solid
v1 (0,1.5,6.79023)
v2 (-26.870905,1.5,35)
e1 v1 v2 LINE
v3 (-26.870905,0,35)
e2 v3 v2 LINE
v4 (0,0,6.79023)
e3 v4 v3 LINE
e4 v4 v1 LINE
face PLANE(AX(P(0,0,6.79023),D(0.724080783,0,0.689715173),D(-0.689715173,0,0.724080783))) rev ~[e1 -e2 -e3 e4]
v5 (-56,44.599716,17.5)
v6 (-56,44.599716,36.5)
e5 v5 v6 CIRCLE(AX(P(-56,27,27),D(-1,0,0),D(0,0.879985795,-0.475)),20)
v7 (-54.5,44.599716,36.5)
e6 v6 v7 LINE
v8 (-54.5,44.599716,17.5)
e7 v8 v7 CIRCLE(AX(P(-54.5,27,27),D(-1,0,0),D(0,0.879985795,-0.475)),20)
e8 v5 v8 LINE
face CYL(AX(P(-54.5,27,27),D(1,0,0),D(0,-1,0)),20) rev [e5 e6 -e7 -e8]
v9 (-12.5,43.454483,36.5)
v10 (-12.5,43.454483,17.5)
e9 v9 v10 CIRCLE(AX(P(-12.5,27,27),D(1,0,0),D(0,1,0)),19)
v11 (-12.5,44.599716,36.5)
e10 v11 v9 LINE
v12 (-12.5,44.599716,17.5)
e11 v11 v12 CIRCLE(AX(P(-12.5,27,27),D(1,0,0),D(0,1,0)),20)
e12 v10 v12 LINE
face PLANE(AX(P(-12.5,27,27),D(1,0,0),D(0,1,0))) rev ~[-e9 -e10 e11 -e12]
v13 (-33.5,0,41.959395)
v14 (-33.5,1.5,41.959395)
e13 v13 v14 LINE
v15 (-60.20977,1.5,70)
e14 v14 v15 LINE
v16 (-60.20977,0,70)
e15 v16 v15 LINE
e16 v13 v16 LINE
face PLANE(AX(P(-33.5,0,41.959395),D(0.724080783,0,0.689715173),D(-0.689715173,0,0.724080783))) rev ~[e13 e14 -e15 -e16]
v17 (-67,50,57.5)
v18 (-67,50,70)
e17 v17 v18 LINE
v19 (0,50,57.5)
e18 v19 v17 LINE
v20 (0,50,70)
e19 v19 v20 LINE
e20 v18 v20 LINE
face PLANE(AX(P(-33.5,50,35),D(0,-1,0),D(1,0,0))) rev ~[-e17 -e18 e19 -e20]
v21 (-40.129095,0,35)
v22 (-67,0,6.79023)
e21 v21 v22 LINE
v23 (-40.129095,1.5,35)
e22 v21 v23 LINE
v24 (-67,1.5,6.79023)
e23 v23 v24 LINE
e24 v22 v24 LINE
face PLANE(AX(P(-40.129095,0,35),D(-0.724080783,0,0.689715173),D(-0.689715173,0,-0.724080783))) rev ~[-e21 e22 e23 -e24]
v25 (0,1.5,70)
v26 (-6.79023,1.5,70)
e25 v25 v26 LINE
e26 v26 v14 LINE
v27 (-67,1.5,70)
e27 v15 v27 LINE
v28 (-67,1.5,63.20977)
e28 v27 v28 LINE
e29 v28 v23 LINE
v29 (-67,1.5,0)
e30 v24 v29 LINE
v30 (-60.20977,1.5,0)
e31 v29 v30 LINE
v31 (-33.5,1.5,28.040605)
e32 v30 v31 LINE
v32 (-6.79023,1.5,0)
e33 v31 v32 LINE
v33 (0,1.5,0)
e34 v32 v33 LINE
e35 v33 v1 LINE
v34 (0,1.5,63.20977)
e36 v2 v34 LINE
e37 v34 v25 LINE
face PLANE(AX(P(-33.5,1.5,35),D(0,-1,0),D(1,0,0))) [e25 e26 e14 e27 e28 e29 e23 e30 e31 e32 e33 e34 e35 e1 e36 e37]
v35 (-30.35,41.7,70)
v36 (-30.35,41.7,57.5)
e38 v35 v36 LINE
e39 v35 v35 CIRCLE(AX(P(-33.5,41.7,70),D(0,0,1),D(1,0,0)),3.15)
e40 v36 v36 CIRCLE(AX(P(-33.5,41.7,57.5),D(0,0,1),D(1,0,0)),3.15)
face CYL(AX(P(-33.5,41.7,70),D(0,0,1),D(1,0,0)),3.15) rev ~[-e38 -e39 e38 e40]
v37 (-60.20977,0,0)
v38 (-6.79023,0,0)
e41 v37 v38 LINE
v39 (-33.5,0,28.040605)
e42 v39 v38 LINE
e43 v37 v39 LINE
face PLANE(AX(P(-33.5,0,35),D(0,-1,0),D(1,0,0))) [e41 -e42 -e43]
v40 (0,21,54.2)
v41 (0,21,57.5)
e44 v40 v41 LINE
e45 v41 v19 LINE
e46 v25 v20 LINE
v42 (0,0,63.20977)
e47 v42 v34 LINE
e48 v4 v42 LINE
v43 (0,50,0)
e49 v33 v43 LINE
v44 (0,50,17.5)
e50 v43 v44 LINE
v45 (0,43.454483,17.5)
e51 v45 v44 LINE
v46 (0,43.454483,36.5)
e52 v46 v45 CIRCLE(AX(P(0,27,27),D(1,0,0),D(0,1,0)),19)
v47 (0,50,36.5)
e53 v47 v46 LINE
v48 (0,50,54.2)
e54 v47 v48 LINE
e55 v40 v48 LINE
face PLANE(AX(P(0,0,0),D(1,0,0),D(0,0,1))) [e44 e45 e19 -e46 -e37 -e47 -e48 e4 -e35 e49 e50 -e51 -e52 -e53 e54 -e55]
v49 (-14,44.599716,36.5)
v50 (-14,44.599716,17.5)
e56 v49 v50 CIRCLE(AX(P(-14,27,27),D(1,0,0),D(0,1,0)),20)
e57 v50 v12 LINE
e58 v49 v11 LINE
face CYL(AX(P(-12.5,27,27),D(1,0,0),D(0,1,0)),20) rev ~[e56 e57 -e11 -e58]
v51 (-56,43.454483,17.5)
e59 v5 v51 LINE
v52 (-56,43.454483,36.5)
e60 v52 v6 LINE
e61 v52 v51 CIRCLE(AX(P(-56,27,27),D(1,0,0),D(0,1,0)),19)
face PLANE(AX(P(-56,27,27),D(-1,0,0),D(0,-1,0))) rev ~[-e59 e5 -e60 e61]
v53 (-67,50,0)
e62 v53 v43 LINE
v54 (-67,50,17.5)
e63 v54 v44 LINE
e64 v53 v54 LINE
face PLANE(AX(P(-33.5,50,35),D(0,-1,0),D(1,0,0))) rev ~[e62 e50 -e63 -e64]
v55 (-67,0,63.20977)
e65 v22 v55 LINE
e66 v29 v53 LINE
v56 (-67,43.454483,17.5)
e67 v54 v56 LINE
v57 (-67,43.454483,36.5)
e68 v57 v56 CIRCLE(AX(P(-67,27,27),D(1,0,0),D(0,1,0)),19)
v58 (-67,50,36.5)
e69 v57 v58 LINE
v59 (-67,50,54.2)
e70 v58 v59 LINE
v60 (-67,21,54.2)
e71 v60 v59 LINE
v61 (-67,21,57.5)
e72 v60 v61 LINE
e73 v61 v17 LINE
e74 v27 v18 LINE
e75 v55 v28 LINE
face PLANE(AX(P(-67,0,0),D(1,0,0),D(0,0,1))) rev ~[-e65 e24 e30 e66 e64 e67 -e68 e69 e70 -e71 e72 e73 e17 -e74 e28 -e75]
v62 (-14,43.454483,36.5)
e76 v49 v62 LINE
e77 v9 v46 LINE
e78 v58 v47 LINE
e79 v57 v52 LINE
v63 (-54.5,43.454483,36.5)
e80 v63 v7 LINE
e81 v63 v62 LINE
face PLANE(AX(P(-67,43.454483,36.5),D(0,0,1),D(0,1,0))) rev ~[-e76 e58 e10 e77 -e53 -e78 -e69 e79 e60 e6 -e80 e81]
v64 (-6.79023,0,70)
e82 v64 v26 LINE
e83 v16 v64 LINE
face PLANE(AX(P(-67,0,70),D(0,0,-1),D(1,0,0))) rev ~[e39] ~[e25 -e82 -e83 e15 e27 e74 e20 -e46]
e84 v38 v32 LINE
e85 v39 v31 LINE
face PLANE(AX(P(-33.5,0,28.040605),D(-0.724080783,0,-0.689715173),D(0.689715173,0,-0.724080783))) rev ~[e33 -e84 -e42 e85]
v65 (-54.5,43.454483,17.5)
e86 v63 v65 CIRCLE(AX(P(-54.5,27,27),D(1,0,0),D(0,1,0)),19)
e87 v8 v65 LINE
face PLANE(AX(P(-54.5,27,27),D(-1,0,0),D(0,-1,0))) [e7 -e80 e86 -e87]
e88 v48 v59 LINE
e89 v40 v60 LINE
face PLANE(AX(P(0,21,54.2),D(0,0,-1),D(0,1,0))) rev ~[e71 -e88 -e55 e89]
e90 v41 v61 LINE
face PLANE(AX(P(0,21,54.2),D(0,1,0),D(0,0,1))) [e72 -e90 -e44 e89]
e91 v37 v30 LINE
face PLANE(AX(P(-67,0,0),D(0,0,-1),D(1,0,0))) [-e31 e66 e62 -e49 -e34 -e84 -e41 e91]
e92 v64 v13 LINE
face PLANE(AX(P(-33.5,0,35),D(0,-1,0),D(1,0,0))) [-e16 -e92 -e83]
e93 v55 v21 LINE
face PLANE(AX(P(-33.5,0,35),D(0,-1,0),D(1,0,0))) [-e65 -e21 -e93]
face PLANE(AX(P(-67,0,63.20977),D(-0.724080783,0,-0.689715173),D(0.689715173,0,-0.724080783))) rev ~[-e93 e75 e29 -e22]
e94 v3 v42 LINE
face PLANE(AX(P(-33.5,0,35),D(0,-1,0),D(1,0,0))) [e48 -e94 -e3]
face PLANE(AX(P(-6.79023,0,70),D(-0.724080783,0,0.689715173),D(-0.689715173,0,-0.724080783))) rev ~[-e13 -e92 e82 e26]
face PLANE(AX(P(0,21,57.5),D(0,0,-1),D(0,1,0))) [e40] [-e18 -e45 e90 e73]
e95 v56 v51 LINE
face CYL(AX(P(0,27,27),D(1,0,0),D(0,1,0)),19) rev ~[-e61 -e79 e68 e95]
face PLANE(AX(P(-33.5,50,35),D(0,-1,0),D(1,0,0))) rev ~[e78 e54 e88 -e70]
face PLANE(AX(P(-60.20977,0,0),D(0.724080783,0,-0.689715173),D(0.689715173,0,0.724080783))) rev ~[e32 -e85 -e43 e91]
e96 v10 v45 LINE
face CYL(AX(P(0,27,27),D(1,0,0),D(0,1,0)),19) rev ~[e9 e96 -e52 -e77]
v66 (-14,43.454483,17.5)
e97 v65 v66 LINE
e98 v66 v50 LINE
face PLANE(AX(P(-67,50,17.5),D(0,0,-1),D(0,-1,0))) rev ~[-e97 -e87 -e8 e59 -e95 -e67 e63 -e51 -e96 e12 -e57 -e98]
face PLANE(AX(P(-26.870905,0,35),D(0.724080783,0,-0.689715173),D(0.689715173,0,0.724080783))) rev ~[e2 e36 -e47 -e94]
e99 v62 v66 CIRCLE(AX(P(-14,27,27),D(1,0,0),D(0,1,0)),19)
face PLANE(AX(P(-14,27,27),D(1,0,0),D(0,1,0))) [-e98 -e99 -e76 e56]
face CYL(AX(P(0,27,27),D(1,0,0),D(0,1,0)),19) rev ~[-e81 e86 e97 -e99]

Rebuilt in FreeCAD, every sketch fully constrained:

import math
import FreeCAD as App
import Part
import Sketcher
Q = App.Units.Quantity


def add_polygon(sketch, points):
    """Adds a closed chain of lines whose ends are joined by coincident constraints."""
    first, n = sketch.GeometryCount, len(points)
    for a, b in zip(points, points[1:] + points[:1]):
        sketch.addGeometry(Part.LineSegment(App.Vector(*a, 0), App.Vector(*b, 0)), False)
    for i in range(n):
        sketch.addConstraint(Sketcher.Constraint("Coincident", first + i, 2, first + (i + 1) % n, 1))

doc = App.newDocument("Part")
body = doc.addObject("PartDesign::Body", "Body")

# Sketch on XZ plane
sketch1 = doc.addObject("Sketcher::SketchObject", "Sketch")
body.addObject(sketch1)
sketch1.AttachmentSupport = (doc.XZ_Plane, [""])
sketch1.MapMode = "FlatFace"
add_polygon(sketch1, [(-67, 70), (-67, 0), (0, 0), (0, 70)])  # lines 0-3
sketch1.addConstraint([
    Sketcher.Constraint("Vertical", 0),
    Sketcher.Constraint("Horizontal", 1),
    Sketcher.Constraint("Vertical", 2),
    Sketcher.Constraint("Horizontal", 3),
    Sketcher.Constraint("Coincident", 1, 2, -1, 1),
    Sketcher.Constraint("DistanceX", 1, 1, 1, 2, Q("67 mm")),
    Sketcher.Constraint("DistanceY", 0, 2, 0, 1, Q("70 mm")),
])
pad1 = doc.addObject("PartDesign::Pad", "Pad")
body.addObject(pad1)
pad1.Profile = sketch1
pad1.Length = 50
pad1.Reversed = True

# Sketch on XZ plane
sketch2 = doc.addObject("Sketcher::SketchObject", "Sketch001")
body.addObject(sketch2)
sketch2.AttachmentSupport = (doc.XZ_Plane, [""])
sketch2.MapMode = "FlatFace"
add_polygon(sketch2, [(-67, 7), (-67, 0), (-60, 0), (-34, 28), (-7, 0), (0, 0), (0, 7), (-27, 35), (0, 63), (0, 70), (-7, 70), (-34, 42), (-60, 70), (-67, 70), (-67, 63), (-40, 35)])  # lines 0-15
sketch2.addConstraint([
    Sketcher.Constraint("Vertical", 0),
    Sketcher.Constraint("Horizontal", 1),
    Sketcher.Constraint("Horizontal", 4),
    Sketcher.Constraint("Vertical", 5),
    Sketcher.Constraint("Vertical", 8),
    Sketcher.Constraint("Horizontal", 9),
    Sketcher.Constraint("Horizontal", 12),
    Sketcher.Constraint("Vertical", 13),
    Sketcher.Constraint("Coincident", 4, 2, -1, 1),
    Sketcher.Constraint("PointOnObject", 0, 2, -1),
    Sketcher.Constraint("PointOnObject", 7, 2, -2),
    Sketcher.Constraint("Parallel", 3, 6),
    Sketcher.Constraint("Parallel", 2, 7),
    Sketcher.Constraint("Parallel", 7, 10),
    Sketcher.Constraint("Parallel", 6, 11),
    Sketcher.Constraint("Parallel", 11, 14),
    Sketcher.Constraint("Parallel", 10, 15),
    Sketcher.Constraint("Horizontal", 9, 2, 11, 2),
    Sketcher.Constraint("Horizontal", 7, 2, 13, 2),
    Sketcher.Constraint("Horizontal", 6, 2, 14, 2),
    Sketcher.Constraint("Horizontal", 5, 2, 15, 2),
    Sketcher.Constraint("Vertical", 3, 2, 9, 2),
    Sketcher.Constraint("Vertical", 2, 2, 10, 2),
    Sketcher.Constraint("Vertical", 1, 2, 11, 2),
    Sketcher.Constraint("Equal", 1, 4),
    Sketcher.Constraint("Equal", 12, 0),
    Sketcher.Constraint("Equal", 5, 8),
    Sketcher.Constraint("DistanceX", 0, 2, -1, 1, Q("67 mm")),
    Sketcher.Constraint("DistanceY", -1, 1, 6, 2, Q("35 mm")),
    Sketcher.Constraint("DistanceX", 1, 1, 1, 2, Q("6.79023 mm")),
    Sketcher.Constraint("DistanceY", 2, 2, 10, 2, Q("13.918789 mm")),
])
pocket1 = doc.addObject("PartDesign::Pocket", "Pocket")
body.addObject(pocket1)
pocket1.Profile = sketch2
pocket1.Length = 1.5

# Sketch on YZ plane
sketch3 = doc.addObject("Sketcher::SketchObject", "Sketch002")
body.addObject(sketch3)
sketch3.AttachmentSupport = (doc.YZ_Plane, [""])
sketch3.MapMode = "FlatFace"
sketch3.addGeometry(Part.Circle(App.Vector(27, 27, 0), App.Vector(0, 0, 1), 19), False)
sketch3.addConstraint([
    Sketcher.Constraint("Diameter", 0, Q("38 mm")),
    Sketcher.Constraint("DistanceX", -1, 1, 0, 3, Q("27 mm")),
    Sketcher.Constraint("DistanceY", -1, 1, 0, 3, Q("27 mm")),
])
pocket2 = doc.addObject("PartDesign::Pocket", "Pocket001")
body.addObject(pocket2)
pocket2.Profile = sketch3
pocket2.Type = "ThroughAll"

# Sketch on YZ plane
sketch4 = doc.addObject("Sketcher::SketchObject", "Sketch003")
body.addObject(sketch4)
sketch4.AttachmentSupport = (doc.YZ_Plane, [""])
sketch4.MapMode = "FlatFace"
add_polygon(sketch4, [(21, 57.5), (21, 54.2), (50, 54.2), (50, 57.5)])  # lines 0-3
sketch4.addConstraint([
    Sketcher.Constraint("Vertical", 0),
    Sketcher.Constraint("Horizontal", 1),
    Sketcher.Constraint("Vertical", 2),
    Sketcher.Constraint("Horizontal", 3),
    Sketcher.Constraint("DistanceX", 1, 1, 1, 2, Q("29 mm")),
    Sketcher.Constraint("DistanceY", 0, 2, 0, 1, Q("3.3 mm")),
    Sketcher.Constraint("DistanceX", -1, 1, 0, 2, Q("21 mm")),
    Sketcher.Constraint("DistanceY", -1, 1, 0, 2, Q("54.2 mm")),
])
pocket3 = doc.addObject("PartDesign::Pocket", "Pocket002")
body.addObject(pocket3)
pocket3.Profile = sketch4
pocket3.Type = "ThroughAll"

# Sketch on XY plane
sketch5 = doc.addObject("Sketcher::SketchObject", "Sketch004")
body.addObject(sketch5)
sketch5.AttachmentSupport = (doc.XY_Plane, [""])
sketch5.MapMode = "FlatFace"
sketch5.AttachmentOffset = App.Placement(App.Vector(0, 0, 70), App.Rotation())
sketch5.addGeometry(Part.Circle(App.Vector(-33.5, 41.7, 0), App.Vector(0, 0, 1), 3.1), False)
sketch5.addConstraint([
    Sketcher.Constraint("Diameter", 0, Q("6.3 mm")),
    Sketcher.Constraint("DistanceX", 0, 3, -1, 1, Q("33.5 mm")),
    Sketcher.Constraint("DistanceY", -1, 1, 0, 3, Q("41.7 mm")),
])
pocket4 = doc.addObject("PartDesign::Pocket", "Pocket003")
body.addObject(pocket4)
pocket4.Profile = sketch5
pocket4.Length = 12.5

# Sketch on YZ plane
sketch6 = doc.addObject("Sketcher::SketchObject", "Sketch005")
body.addObject(sketch6)
sketch6.AttachmentSupport = (doc.YZ_Plane, [""])
sketch6.MapMode = "FlatFace"
sketch6.AttachmentOffset = App.Placement(App.Vector(0, 0, -12.5), App.Rotation())
sketch6.addGeometry(Part.Circle(App.Vector(27, 27, 0), App.Vector(0, 0, 1), 20), False)
sketch6.addConstraint([
    Sketcher.Constraint("Diameter", 0, Q("40 mm")),
    Sketcher.Constraint("DistanceX", -1, 1, 0, 3, Q("27 mm")),
    Sketcher.Constraint("DistanceY", -1, 1, 0, 3, Q("27 mm")),
])
pocket5 = doc.addObject("PartDesign::Pocket", "Pocket004")
body.addObject(pocket5)
pocket5.Profile = sketch6
pocket5.Length = 1.5

# Sketch on YZ plane
sketch7 = doc.addObject("Sketcher::SketchObject", "Sketch006")
body.addObject(sketch7)
sketch7.AttachmentSupport = (doc.YZ_Plane, [""])
sketch7.MapMode = "FlatFace"
sketch7.AttachmentOffset = App.Placement(App.Vector(0, 0, -54.5), App.Rotation())
sketch7.addGeometry(Part.Circle(App.Vector(27, 27, 0), App.Vector(0, 0, 1), 20), False)
sketch7.addConstraint([
    Sketcher.Constraint("Diameter", 0, Q("40 mm")),
    Sketcher.Constraint("DistanceX", -1, 1, 0, 3, Q("27 mm")),
    Sketcher.Constraint("DistanceY", -1, 1, 0, 3, Q("27 mm")),
])
pocket6 = doc.addObject("PartDesign::Pocket", "Pocket005")
body.addObject(pocket6)
pocket6.Profile = sketch7
pocket6.Length = 1.5

# Sketch on YZ plane
sketch8 = doc.addObject("Sketcher::SketchObject", "Sketch007")
body.addObject(sketch8)
sketch8.AttachmentSupport = (doc.YZ_Plane, [""])
sketch8.MapMode = "FlatFace"
sketch8.AttachmentOffset = App.Placement(App.Vector(0, 0, -67), App.Rotation())
sketch8.addGeometry([
    Part.LineSegment(App.Vector(43, 36, 0), App.Vector(50, 36, 0)),
    Part.LineSegment(App.Vector(50, 36, 0), App.Vector(50, 18, 0)),
    Part.LineSegment(App.Vector(50, 18, 0), App.Vector(43, 18, 0)),
    Part.ArcOfCircle(Part.Circle(App.Vector(27, 27, 0), App.Vector(0, 0, 1), 19), math.radians(-30), math.radians(30)),
], False)
sketch8.addConstraint([
    Sketcher.Constraint("Coincident", 0, 2, 1, 1),
    Sketcher.Constraint("Coincident", 1, 2, 2, 1),
    Sketcher.Constraint("Coincident", 2, 2, 3, 1),
    Sketcher.Constraint("Coincident", 3, 2, 0, 1),
    Sketcher.Constraint("Horizontal", 0),
    Sketcher.Constraint("Vertical", 1),
    Sketcher.Constraint("Horizontal", 2),
    Sketcher.Constraint("Vertical", 2, 2, 3, 2),
    Sketcher.Constraint("Radius", 3, Q("19 mm")),
    Sketcher.Constraint("DistanceY", 1, 2, 1, 1, Q("19 mm")),
    Sketcher.Constraint("DistanceX", -1, 1, 3, 3, Q("27 mm")),
    Sketcher.Constraint("DistanceY", -1, 1, 3, 3, Q("27 mm")),
    Sketcher.Constraint("DistanceX", -1, 1, 0, 2, Q("50 mm")),
])
pocket7 = doc.addObject("PartDesign::Pocket", "Pocket006")
body.addObject(pocket7)
pocket7.Profile = sketch8
pocket7.Type = "ThroughAll"
pocket7.Reversed = True

doc.recompute()
